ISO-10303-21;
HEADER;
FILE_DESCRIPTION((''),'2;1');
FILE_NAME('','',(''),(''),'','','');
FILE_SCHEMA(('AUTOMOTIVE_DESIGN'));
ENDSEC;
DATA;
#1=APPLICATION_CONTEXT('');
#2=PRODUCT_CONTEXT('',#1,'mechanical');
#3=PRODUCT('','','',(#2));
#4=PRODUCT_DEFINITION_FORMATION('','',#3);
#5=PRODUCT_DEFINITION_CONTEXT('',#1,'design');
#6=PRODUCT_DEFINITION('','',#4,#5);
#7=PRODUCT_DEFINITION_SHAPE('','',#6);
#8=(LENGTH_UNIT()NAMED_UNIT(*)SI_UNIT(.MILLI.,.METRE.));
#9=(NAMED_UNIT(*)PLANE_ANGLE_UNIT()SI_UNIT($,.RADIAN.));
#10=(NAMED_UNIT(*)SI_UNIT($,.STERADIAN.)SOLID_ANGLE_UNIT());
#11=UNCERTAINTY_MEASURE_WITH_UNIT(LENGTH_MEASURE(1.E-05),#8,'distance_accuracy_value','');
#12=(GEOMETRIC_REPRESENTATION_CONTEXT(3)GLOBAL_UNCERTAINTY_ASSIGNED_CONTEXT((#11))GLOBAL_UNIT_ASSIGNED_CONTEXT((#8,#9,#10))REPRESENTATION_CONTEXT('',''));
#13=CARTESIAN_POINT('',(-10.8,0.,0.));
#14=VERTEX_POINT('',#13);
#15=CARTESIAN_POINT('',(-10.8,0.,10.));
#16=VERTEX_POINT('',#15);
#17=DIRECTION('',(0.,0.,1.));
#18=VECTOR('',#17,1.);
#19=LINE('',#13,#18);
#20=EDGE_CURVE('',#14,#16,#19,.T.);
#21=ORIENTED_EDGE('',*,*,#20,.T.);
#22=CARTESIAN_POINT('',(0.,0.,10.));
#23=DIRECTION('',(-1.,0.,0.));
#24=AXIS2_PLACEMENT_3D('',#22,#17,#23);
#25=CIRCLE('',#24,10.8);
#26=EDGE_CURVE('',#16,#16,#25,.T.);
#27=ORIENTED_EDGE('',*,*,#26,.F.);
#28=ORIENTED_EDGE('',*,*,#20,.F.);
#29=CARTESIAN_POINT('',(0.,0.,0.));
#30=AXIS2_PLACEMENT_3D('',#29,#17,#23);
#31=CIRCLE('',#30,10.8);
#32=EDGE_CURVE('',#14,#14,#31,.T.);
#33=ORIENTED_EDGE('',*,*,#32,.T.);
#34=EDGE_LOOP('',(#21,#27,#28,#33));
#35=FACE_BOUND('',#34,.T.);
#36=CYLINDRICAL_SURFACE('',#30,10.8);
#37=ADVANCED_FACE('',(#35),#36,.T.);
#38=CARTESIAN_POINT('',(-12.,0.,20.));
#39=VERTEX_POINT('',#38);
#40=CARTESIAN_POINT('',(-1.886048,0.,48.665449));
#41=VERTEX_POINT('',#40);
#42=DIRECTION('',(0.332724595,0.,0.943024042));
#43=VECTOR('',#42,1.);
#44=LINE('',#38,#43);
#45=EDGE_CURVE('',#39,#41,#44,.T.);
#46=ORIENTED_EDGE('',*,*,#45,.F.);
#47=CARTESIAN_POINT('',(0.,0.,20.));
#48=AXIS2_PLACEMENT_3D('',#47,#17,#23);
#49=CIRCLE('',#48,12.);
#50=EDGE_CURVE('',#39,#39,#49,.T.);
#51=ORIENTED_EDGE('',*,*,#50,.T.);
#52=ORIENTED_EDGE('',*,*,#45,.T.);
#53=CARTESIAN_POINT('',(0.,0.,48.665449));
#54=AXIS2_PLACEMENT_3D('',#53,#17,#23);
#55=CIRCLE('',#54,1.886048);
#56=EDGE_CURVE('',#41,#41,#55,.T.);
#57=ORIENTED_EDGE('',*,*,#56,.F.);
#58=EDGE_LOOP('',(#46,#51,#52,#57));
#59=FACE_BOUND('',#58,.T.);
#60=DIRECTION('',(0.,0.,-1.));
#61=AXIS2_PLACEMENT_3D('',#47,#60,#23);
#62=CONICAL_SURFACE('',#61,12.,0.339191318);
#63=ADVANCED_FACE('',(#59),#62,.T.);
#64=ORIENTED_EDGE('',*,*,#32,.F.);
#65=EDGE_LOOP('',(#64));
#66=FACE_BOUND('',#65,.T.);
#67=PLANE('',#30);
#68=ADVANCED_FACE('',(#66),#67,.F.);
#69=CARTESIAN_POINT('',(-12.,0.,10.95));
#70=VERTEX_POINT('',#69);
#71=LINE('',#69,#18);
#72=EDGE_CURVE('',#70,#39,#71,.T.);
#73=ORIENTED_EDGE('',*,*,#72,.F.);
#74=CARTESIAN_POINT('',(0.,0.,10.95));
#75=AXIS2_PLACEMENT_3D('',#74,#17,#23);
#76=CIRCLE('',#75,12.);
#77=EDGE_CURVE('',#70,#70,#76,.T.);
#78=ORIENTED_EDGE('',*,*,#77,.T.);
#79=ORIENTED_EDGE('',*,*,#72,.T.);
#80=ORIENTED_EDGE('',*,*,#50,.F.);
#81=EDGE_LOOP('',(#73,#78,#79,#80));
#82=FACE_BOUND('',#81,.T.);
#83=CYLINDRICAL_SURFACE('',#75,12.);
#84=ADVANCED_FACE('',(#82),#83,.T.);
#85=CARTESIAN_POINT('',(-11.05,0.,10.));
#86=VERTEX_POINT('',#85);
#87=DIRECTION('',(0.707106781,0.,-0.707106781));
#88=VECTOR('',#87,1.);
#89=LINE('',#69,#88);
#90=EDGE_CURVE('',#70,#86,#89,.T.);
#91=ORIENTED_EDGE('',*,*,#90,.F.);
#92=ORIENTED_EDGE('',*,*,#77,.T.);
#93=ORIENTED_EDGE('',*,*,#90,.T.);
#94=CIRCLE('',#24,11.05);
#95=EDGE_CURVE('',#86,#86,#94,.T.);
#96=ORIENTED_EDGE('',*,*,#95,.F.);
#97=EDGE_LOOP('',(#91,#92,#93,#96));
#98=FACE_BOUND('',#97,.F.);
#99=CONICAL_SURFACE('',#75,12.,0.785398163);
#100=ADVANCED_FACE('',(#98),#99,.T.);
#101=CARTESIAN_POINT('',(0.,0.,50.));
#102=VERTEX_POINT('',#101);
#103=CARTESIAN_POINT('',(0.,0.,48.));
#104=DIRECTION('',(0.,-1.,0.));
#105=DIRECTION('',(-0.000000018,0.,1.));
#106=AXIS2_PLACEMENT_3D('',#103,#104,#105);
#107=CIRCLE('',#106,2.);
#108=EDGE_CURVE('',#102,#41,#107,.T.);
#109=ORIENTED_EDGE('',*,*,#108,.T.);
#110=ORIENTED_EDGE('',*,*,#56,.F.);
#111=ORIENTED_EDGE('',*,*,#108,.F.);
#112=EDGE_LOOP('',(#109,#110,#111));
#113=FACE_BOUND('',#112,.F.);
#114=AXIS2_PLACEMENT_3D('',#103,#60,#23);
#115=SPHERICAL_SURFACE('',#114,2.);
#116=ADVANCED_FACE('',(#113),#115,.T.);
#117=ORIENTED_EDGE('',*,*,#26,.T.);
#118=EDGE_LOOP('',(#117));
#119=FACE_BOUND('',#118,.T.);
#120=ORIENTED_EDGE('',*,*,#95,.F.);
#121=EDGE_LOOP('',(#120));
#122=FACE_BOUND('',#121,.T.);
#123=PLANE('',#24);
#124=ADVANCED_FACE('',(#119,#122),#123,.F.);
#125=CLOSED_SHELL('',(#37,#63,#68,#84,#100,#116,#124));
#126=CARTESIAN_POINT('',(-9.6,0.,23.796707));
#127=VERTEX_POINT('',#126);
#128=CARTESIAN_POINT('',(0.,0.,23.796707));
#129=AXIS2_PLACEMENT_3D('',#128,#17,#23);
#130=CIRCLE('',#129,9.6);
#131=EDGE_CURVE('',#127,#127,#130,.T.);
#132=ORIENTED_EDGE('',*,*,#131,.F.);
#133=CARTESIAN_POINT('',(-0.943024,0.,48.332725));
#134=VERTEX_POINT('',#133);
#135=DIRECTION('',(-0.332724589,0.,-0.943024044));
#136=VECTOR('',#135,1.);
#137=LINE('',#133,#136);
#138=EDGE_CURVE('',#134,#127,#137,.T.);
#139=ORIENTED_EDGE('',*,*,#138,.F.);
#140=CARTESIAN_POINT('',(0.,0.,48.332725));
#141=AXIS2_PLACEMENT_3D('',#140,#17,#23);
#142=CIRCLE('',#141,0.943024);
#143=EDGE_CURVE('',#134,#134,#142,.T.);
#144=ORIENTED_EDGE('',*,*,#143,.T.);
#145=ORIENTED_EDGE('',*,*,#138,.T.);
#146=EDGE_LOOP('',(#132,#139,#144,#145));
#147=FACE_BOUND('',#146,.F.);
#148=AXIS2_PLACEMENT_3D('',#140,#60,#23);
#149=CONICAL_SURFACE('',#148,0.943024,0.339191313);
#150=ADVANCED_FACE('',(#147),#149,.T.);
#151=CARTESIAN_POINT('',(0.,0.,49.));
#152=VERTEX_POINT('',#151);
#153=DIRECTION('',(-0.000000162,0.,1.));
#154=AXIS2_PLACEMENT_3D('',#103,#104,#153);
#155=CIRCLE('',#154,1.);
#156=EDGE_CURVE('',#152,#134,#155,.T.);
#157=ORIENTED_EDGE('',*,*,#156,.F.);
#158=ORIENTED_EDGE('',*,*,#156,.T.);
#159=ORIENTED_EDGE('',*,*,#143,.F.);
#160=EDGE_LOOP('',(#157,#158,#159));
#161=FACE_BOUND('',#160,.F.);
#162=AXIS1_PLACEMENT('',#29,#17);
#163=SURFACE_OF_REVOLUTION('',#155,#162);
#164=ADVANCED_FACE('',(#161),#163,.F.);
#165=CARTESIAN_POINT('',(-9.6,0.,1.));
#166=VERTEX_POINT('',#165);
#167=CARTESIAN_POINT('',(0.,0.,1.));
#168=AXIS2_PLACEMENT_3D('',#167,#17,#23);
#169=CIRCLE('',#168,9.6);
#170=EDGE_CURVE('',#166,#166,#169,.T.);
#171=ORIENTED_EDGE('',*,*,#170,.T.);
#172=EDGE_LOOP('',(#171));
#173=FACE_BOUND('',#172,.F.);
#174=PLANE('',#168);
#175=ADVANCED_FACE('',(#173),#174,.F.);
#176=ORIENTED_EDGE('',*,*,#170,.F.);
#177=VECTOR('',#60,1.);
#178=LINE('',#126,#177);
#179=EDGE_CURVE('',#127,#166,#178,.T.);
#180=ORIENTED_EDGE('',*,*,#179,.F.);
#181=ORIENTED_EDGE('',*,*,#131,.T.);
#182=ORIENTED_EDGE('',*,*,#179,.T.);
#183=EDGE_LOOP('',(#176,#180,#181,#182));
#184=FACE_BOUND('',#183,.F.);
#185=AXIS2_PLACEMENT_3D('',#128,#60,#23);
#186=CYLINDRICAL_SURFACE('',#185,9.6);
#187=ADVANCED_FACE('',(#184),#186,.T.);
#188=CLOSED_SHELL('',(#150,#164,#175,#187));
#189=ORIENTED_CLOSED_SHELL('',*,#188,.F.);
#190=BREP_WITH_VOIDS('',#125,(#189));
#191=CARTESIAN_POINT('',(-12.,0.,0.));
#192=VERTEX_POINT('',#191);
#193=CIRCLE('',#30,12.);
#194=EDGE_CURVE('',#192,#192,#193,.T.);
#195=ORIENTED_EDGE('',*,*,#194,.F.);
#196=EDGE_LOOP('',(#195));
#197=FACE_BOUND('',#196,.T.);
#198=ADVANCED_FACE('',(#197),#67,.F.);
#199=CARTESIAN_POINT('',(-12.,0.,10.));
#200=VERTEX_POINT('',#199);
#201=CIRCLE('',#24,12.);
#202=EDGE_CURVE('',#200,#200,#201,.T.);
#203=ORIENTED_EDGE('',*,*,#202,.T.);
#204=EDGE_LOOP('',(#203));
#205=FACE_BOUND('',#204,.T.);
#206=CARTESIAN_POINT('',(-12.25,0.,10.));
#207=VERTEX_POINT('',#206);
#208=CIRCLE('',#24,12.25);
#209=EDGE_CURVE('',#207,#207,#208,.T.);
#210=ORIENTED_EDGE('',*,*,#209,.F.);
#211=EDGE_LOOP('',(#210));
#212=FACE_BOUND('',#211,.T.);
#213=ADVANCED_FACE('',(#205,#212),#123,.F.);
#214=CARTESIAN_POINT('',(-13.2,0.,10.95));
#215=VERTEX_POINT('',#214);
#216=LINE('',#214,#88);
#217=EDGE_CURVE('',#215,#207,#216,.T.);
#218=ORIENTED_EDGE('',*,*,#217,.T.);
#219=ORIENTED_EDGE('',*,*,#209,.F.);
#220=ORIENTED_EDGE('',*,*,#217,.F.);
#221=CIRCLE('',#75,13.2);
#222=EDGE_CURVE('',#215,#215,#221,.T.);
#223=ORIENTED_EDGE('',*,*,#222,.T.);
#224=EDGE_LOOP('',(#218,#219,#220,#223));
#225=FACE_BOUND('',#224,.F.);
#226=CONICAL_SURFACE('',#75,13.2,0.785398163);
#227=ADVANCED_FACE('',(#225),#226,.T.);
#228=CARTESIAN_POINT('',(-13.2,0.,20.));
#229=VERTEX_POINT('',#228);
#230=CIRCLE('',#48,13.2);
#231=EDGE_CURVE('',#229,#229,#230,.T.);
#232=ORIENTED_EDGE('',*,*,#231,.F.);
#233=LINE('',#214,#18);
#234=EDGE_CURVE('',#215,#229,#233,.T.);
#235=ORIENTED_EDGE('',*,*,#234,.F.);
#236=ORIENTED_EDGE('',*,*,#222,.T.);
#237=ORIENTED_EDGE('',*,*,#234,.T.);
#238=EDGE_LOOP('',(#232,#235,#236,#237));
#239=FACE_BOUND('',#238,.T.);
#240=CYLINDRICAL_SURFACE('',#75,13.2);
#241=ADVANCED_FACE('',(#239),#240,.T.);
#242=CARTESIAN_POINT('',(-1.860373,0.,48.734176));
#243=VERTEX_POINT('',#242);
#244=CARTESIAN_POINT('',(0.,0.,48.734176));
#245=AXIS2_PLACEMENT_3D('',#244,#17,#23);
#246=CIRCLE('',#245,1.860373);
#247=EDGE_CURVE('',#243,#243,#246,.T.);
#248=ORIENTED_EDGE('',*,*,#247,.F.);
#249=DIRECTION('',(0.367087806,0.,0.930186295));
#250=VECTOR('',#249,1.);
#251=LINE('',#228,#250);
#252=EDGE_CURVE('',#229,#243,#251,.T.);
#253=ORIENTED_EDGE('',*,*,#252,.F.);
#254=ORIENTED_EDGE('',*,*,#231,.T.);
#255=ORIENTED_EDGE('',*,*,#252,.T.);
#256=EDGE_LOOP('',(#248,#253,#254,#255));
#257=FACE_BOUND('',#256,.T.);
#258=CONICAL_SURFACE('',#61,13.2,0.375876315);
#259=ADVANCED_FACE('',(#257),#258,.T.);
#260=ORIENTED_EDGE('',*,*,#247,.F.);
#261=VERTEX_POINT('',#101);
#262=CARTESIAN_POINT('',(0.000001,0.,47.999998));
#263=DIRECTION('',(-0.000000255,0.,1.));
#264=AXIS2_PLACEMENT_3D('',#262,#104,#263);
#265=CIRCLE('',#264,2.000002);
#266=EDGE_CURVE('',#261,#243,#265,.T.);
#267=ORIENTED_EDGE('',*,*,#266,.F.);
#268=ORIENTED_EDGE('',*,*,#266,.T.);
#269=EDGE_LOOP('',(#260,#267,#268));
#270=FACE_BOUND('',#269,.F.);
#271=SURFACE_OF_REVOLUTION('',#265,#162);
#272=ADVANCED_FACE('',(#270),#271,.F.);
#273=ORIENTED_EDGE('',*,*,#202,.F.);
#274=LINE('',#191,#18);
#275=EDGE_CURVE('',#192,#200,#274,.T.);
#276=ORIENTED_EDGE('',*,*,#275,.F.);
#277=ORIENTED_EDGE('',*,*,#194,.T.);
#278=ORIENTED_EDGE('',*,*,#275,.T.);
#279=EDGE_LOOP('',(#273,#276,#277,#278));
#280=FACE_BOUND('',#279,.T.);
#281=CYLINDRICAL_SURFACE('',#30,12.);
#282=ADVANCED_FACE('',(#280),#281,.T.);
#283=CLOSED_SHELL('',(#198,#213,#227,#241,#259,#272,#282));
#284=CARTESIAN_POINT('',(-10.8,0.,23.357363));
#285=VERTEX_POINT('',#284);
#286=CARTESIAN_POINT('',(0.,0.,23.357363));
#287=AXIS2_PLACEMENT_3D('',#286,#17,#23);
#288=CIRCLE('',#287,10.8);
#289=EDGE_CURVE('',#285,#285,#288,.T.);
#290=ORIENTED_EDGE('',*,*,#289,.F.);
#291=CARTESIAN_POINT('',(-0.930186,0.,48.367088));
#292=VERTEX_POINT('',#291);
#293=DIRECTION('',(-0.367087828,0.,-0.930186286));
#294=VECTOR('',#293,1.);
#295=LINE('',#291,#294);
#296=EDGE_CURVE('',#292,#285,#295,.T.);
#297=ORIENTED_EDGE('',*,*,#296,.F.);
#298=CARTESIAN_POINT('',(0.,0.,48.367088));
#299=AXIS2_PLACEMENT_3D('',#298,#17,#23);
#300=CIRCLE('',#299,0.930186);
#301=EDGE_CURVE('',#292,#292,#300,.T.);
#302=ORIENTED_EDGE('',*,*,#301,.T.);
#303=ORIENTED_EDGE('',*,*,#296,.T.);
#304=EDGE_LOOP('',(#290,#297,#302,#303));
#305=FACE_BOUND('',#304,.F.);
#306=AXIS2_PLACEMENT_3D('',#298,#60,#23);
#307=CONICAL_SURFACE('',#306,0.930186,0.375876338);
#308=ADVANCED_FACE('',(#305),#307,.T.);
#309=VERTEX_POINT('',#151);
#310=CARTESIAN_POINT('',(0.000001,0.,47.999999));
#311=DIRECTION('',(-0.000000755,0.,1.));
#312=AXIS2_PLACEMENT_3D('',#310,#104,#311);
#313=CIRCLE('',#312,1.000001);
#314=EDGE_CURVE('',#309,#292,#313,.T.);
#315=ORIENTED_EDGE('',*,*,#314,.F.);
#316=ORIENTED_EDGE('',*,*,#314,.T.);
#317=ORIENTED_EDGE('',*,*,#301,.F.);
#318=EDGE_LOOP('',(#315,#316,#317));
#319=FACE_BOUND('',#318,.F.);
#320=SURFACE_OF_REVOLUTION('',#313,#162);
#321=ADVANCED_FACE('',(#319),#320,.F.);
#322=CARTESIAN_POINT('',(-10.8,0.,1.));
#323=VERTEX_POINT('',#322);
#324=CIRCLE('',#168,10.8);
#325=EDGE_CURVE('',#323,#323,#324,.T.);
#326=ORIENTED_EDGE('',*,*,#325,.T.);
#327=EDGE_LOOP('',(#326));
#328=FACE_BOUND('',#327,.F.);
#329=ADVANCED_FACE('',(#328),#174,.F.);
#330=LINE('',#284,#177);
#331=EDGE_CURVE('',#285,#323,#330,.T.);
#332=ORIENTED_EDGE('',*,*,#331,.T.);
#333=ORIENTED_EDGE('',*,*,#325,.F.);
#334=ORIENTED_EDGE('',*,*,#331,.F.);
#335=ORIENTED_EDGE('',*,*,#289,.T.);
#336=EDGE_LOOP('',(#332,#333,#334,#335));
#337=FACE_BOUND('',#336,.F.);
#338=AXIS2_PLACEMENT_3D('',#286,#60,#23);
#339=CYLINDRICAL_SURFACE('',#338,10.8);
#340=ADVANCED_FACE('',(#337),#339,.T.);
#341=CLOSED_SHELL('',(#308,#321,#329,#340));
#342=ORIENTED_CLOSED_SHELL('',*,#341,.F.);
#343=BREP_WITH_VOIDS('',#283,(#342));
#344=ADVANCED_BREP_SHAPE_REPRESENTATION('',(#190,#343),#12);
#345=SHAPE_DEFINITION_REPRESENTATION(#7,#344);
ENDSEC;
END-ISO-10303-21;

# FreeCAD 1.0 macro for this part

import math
import FreeCAD as App
import Part
import Sketcher

V = App.Vector
Q = App.Units.Quantity

doc = App.newDocument("Part")
params = doc.addObject("Spreadsheet::Sheet", "Params")
for row, (alias, value) in enumerate([
    ("sketch1_radius", "1 mm"),
    ("sketch1_radius2", "2 mm"),
    ("sketch1_height", "10 mm"),
    ("sketch1_width", "10.8 mm"),
    ("sketch1_width2", "9.6 mm"),
    ("revolution_angle", "360 deg"),
    ("sketch2_radius", "1.000001 mm"),
    ("sketch2_radius2", "2.000002 mm"),
    ("sketch2_width", "12 mm"),
    ("sketch2_height", "10 mm"),
    ("sketch2_width2", "10.8 mm"),
    ("revolution2_angle", "360 deg"),
], start=1):
    params.set(f"A{row}", alias)
    params.set(f"B{row}", "=" + value)
    params.setAlias(f"B{row}", alias)

body = doc.addObject("PartDesign::Body", "Body")

# Sketch on XZ plane
sketch1 = body.newObject("Sketcher::SketchObject", "Sketch")
sketch1.AttachmentSupport = (doc.getObject("XZ_Plane"), [""])
sketch1.MapMode = "FlatFace"
sketch1.addGeometry(Part.LineSegment(V(-10.8, 10, 0), V(-10.8, 0, 0)), False)
sketch1.addGeometry(Part.LineSegment(V(-10.8, 0, 0), V(0, 0, 0)), False)
sketch1.addGeometry(Part.LineSegment(V(0, 0, 0), V(0, 1, 0)), False)
sketch1.addGeometry(Part.LineSegment(V(0, 1, 0), V(-9.6, 1, 0)), False)
sketch1.addGeometry(Part.LineSegment(V(-9.6, 1, 0), V(-9.6, 23.8, 0)), False)
sketch1.addGeometry(Part.LineSegment(V(-9.6, 23.8, 0), V(-0.94, 48.33, 0)), False)
sketch1.addGeometry(Part.ArcOfCircle(Part.Circle(V(0, 48, 0), V(0, 0, 1), 1), math.radians(90), math.radians(161)), False)
sketch1.addGeometry(Part.LineSegment(V(0, 49, 0), V(0, 50, 0)), False)
sketch1.addGeometry(Part.ArcOfCircle(Part.Circle(V(0, 48, 0), V(0, 0, 1), 2), math.radians(90), math.radians(161)), False)
sketch1.addGeometry(Part.LineSegment(V(-1.89, 48.67, 0), V(-12, 20, 0)), False)
sketch1.addGeometry(Part.LineSegment(V(-12, 20, 0), V(-12, 10.95, 0)), False)
sketch1.addGeometry(Part.LineSegment(V(-12, 10.95, 0), V(-11.05, 10, 0)), False)
sketch1.addGeometry(Part.LineSegment(V(-11.05, 10, 0), V(-10.8, 10, 0)), False)
sketch1.addConstraint(Sketcher.Constraint("Coincident", 0, 2, 1, 1))
sketch1.addConstraint(Sketcher.Constraint("Coincident", 1, 2, 2, 1))
sketch1.addConstraint(Sketcher.Constraint("Coincident", 2, 2, 3, 1))
sketch1.addConstraint(Sketcher.Constraint("Coincident", 3, 2, 4, 1))
sketch1.addConstraint(Sketcher.Constraint("Coincident", 4, 2, 5, 1))
sketch1.addConstraint(Sketcher.Constraint("Tangent", 5, 2, 6, 2))
sketch1.addConstraint(Sketcher.Constraint("Coincident", 6, 1, 7, 1))
sketch1.addConstraint(Sketcher.Constraint("Coincident", 7, 2, 8, 1))
sketch1.addConstraint(Sketcher.Constraint("Tangent", 8, 2, 9, 1))
sketch1.addConstraint(Sketcher.Constraint("Coincident", 9, 2, 10, 1))
sketch1.addConstraint(Sketcher.Constraint("Coincident", 10, 2, 11, 1))
sketch1.addConstraint(Sketcher.Constraint("Coincident", 11, 2, 12, 1))
sketch1.addConstraint(Sketcher.Constraint("Coincident", 12, 2, 0, 1))
sketch1.addConstraint(Sketcher.Constraint("Vertical", 0))
sketch1.addConstraint(Sketcher.Constraint("Horizontal", 1))
sketch1.addConstraint(Sketcher.Constraint("Vertical", 2))
sketch1.addConstraint(Sketcher.Constraint("Horizontal", 3))
sketch1.addConstraint(Sketcher.Constraint("Vertical", 4))
sketch1.addConstraint(Sketcher.Constraint("Vertical", 7))
sketch1.addConstraint(Sketcher.Constraint("Vertical", 10))
sketch1.addConstraint(Sketcher.Constraint("Horizontal", 12))
sketch1.addConstraint(Sketcher.Constraint("Coincident", 1, 2, -1, 1))
sketch1.addConstraint(Sketcher.Constraint("Coincident", 8, 3, 6, 3))
sketch1.addConstraint(Sketcher.Constraint("PointOnObject", 6, 3, -2))
sketch1.addConstraint(Sketcher.Constraint("PointOnObject", 6, 1, -2))
sketch1.addConstraint(Sketcher.Constraint("Parallel", 5, 9))
sketch1.addConstraint(Sketcher.Constraint("Equal", 2, 7))
sketch1.addConstraint(Sketcher.Constraint("Radius", 6, Q("1 mm")))
sketch1.addConstraint(Sketcher.Constraint("Radius", 8, Q("2 mm")))
sketch1.addConstraint(Sketcher.Constraint("DistanceY", 0, 2, 0, 1, Q("10 mm")))
sketch1.addConstraint(Sketcher.Constraint("Angle", 11, Q("-45 deg")))
sketch1.addConstraint(Sketcher.Constraint("DistanceX", 1, 1, 1, 2, Q("10.8 mm")))
sketch1.addConstraint(Sketcher.Constraint("DistanceX", 3, 2, 3, 1, Q("9.6 mm")))
sketch1.addConstraint(Sketcher.Constraint("DistanceY", -1, 1, 6, 3, Q("48 mm")))
sketch1.addConstraint(Sketcher.Constraint("DistanceX", 9, 2, -1, 1, Q("12 mm")))
sketch1.addConstraint(Sketcher.Constraint("DistanceY", -1, 1, 9, 2, Q("20 mm")))
sketch1.addConstraint(Sketcher.Constraint("DistanceX", 12, 1, 12, 2, Q("0.25 mm")))
sketch1.setExpression("Constraints[27]", "Params.sketch1_radius")
sketch1.setExpression("Constraints[28]", "Params.sketch1_radius2")
sketch1.setExpression("Constraints[29]", "Params.sketch1_height")
sketch1.setExpression("Constraints[31]", "Params.sketch1_width")
sketch1.setExpression("Constraints[32]", "Params.sketch1_width2")
revolution = body.newObject("PartDesign::Revolution", "Revolution")
revolution.Profile = sketch1
revolution.ReferenceAxis = (sketch1, ["V_Axis"])
revolution.setExpression("Angle", "Params.revolution_angle")
body2 = doc.addObject("PartDesign::Body", "Body001")

# Sketch on XZ plane
sketch2 = body2.newObject("Sketcher::SketchObject", "Sketch001")
sketch2.AttachmentSupport = (doc.getObject("XZ_Plane001"), [""])
sketch2.MapMode = "FlatFace"
sketch2.addGeometry(Part.LineSegment(V(-12, 10, 0), V(-12, 0, 0)), False)
sketch2.addGeometry(Part.LineSegment(V(-12, 0, 0), V(0, 0, 0)), False)
sketch2.addGeometry(Part.LineSegment(V(0, 0, 0), V(0, 1, 0)), False)
sketch2.addGeometry(Part.LineSegment(V(0, 1, 0), V(-10.8, 1, 0)), False)
sketch2.addGeometry(Part.LineSegment(V(-10.8, 1, 0), V(-10.8, 23.36, 0)), False)
sketch2.addGeometry(Part.LineSegment(V(-10.8, 23.36, 0), V(-0.93, 48.37, 0)), False)
sketch2.addGeometry(Part.ArcOfCircle(Part.Circle(V(0, 48, 0), V(0, 0, 1), 1), math.radians(90), math.radians(158)), False)
sketch2.addGeometry(Part.LineSegment(V(0, 49, 0), V(0, 50, 0)), False)
sketch2.addGeometry(Part.ArcOfCircle(Part.Circle(V(0, 48, 0), V(0, 0, 1), 2), math.radians(90), math.radians(158)), False)
sketch2.addGeometry(Part.LineSegment(V(-1.86, 48.73, 0), V(-13.2, 20, 0)), False)
sketch2.addGeometry(Part.LineSegment(V(-13.2, 20, 0), V(-13.2, 10.95, 0)), False)
sketch2.addGeometry(Part.LineSegment(V(-13.2, 10.95, 0), V(-12.25, 10, 0)), False)
sketch2.addGeometry(Part.LineSegment(V(-12.25, 10, 0), V(-12, 10, 0)), False)
sketch2.addConstraint(Sketcher.Constraint("Coincident", 0, 2, 1, 1))
sketch2.addConstraint(Sketcher.Constraint("Coincident", 1, 2, 2, 1))
sketch2.addConstraint(Sketcher.Constraint("Coincident", 2, 2, 3, 1))
sketch2.addConstraint(Sketcher.Constraint("Coincident", 3, 2, 4, 1))
sketch2.addConstraint(Sketcher.Constraint("Coincident", 4, 2, 5, 1))
sketch2.addConstraint(Sketcher.Constraint("Tangent", 5, 2, 6, 2))
sketch2.addConstraint(Sketcher.Constraint("Coincident", 6, 1, 7, 1))
sketch2.addConstraint(Sketcher.Constraint("Coincident", 7, 2, 8, 1))
sketch2.addConstraint(Sketcher.Constraint("Tangent", 8, 2, 9, 1))
sketch2.addConstraint(Sketcher.Constraint("Coincident", 9, 2, 10, 1))
sketch2.addConstraint(Sketcher.Constraint("Coincident", 10, 2, 11, 1))
sketch2.addConstraint(Sketcher.Constraint("Coincident", 11, 2, 12, 1))
sketch2.addConstraint(Sketcher.Constraint("Coincident", 12, 2, 0, 1))
sketch2.addConstraint(Sketcher.Constraint("Vertical", 0))
sketch2.addConstraint(Sketcher.Constraint("Horizontal", 1))
sketch2.addConstraint(Sketcher.Constraint("Vertical", 2))
sketch2.addConstraint(Sketcher.Constraint("Horizontal", 3))
sketch2.addConstraint(Sketcher.Constraint("Vertical", 4))
sketch2.addConstraint(Sketcher.Constraint("Vertical", 7))
sketch2.addConstraint(Sketcher.Constraint("Vertical", 10))
sketch2.addConstraint(Sketcher.Constraint("Horizontal", 12))
sketch2.addConstraint(Sketcher.Constraint("Coincident", 1, 2, -1, 1))
sketch2.addConstraint(Sketcher.Constraint("Coincident", 8, 3, 6, 3))
sketch2.addConstraint(Sketcher.Constraint("PointOnObject", 6, 3, -2))
sketch2.addConstraint(Sketcher.Constraint("PointOnObject", 6, 1, -2))
sketch2.addConstraint(Sketcher.Constraint("Parallel", 5, 9))
sketch2.addConstraint(Sketcher.Constraint("Equal", 2, 7))
sketch2.addConstraint(Sketcher.Constraint("Radius", 6, Q("1.000001 mm")))
sketch2.addConstraint(Sketcher.Constraint("Radius", 8, Q("2.000002 mm")))
sketch2.addConstraint(Sketcher.Constraint("DistanceX", 1, 1, 1, 2, Q("12 mm")))
sketch2.addConstraint(Sketcher.Constraint("DistanceY", 0, 2, 0, 1, Q("10 mm")))
sketch2.addConstraint(Sketcher.Constraint("Angle", 11, Q("-45 deg")))
sketch2.addConstraint(Sketcher.Constraint("DistanceX", 3, 2, 3, 1, Q("10.8 mm")))
sketch2.addConstraint(Sketcher.Constraint("DistanceY", -1, 1, 6, 3, Q("47.999999 mm")))
sketch2.addConstraint(Sketcher.Constraint("DistanceY", -1, 1, 9, 2, Q("20 mm")))
sketch2.addConstraint(Sketcher.Constraint("DistanceX", 12, 1, 12, 2, Q("0.25 mm")))
sketch2.addConstraint(Sketcher.Constraint("DistanceY", 10, 2, 10, 1, Q("9.05 mm")))
sketch2.setExpression("Constraints[27]", "Params.sketch2_radius")
sketch2.setExpression("Constraints[28]", "Params.sketch2_radius2")
sketch2.setExpression("Constraints[29]", "Params.sketch2_width")
sketch2.setExpression("Constraints[30]", "Params.sketch2_height")
sketch2.setExpression("Constraints[32]", "Params.sketch2_width2")
revolution2 = body2.newObject("PartDesign::Revolution", "Revolution001")
revolution2.Profile = sketch2
revolution2.ReferenceAxis = (sketch2, ["V_Axis"])
revolution2.setExpression("Angle", "Params.revolution2_angle")

doc.recompute()
